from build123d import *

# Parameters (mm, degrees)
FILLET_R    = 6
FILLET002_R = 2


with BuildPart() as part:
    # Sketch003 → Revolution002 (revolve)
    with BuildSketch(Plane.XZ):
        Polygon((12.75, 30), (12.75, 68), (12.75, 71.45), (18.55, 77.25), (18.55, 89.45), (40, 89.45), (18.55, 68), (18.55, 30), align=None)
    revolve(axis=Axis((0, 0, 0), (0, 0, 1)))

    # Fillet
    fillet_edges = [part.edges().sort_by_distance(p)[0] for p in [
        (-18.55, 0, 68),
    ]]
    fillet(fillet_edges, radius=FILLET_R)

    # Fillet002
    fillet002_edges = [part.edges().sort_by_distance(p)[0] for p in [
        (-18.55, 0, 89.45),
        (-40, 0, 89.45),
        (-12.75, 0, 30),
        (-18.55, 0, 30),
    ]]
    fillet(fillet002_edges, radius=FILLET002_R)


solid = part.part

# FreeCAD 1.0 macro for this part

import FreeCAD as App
import Part
import Sketcher
Q = App.Units.Quantity


def edges_at(feature, points):
    """Names of the edges that pass closest to the given points."""
    edges = feature.Shape.Edges
    near = lambda p: min(range(len(edges)), key=lambda i: edges[i].distToShape(Part.Vertex(*p))[0])
    return sorted({f"Edge{near(p) + 1}" for p in points})

doc = App.newDocument("Part")
params = doc.addObject("Spreadsheet::Sheet", "Params")
for row, (alias, value) in enumerate([
    ("sketch1_height", "38 mm"),
    ("sketch1_width", "5.8 mm"),
    ("sketch1_height2", "12.2 mm"),
    ("sketch1_width2", "21.45 mm"),
    ("revolution_angle", "360 deg"),
    ("fillet_radius", "6 mm"),
    ("fillet2_radius", "2 mm"),
], start=1):
    params.set(f"A{row}", alias)
    params.set(f"B{row}", "=" + value)
    params.setAlias(f"B{row}", alias)

body = doc.addObject("PartDesign::Body", "Body")

# Sketch on XZ plane
sketch1 = doc.addObject("Sketcher::SketchObject", "Sketch")
body.addObject(sketch1)
sketch1.AttachmentSupport = (doc.XZ_Plane, [""])
sketch1.MapMode = "FlatFace"
sketch1.addGeometry([
    Part.LineSegment(App.Vector(12.75, 71.45, 0), App.Vector(12.75, 30, 0)),  # 0
    Part.LineSegment(App.Vector(12.75, 30, 0), App.Vector(18.55, 30, 0)),  # 1
    Part.LineSegment(App.Vector(18.55, 30, 0), App.Vector(18.55, 68, 0)),  # 2
    Part.LineSegment(App.Vector(18.55, 68, 0), App.Vector(40, 89.45, 0)),  # 3
    Part.LineSegment(App.Vector(40, 89.45, 0), App.Vector(18.55, 89.45, 0)),  # 4
    Part.LineSegment(App.Vector(18.55, 89.45, 0), App.Vector(18.55, 77.25, 0)),  # 5
    Part.LineSegment(App.Vector(18.55, 77.25, 0), App.Vector(12.75, 71.45, 0)),  # 6
], False)
sketch1.addConstraint([
    Sketcher.Constraint("Coincident", 0, 2, 1, 1),
    Sketcher.Constraint("Coincident", 1, 2, 2, 1),
    Sketcher.Constraint("Coincident", 2, 2, 3, 1),
    Sketcher.Constraint("Coincident", 3, 2, 4, 1),
    Sketcher.Constraint("Coincident", 4, 2, 5, 1),
    Sketcher.Constraint("Coincident", 5, 2, 6, 1),
    Sketcher.Constraint("Coincident", 6, 2, 0, 1),
    Sketcher.Constraint("Vertical", 0),
    Sketcher.Constraint("Horizontal", 1),
    Sketcher.Constraint("Vertical", 2),
    Sketcher.Constraint("Horizontal", 4),
    Sketcher.Constraint("Vertical", 5),
    Sketcher.Constraint("Parallel", 3, 6),
    Sketcher.Constraint("Vertical", 2, 2, 4, 2),
    Sketcher.Constraint("DistanceY", 2, 1, 2, 2, Q("38 mm")),
    Sketcher.Constraint("Angle", 3, Q("45 deg")),
    Sketcher.Constraint("DistanceX", 1, 1, 1, 2, Q("5.8 mm")),
    Sketcher.Constraint("DistanceY", 5, 2, 5, 1, Q("12.2 mm")),
    Sketcher.Constraint("DistanceY", -1, 1, 0, 2, Q("30 mm")),
    Sketcher.Constraint("DistanceX", -1, 1, 3, 2, Q("40 mm")),
    Sketcher.Constraint("DistanceX", 4, 2, 4, 1, Q("21.45 mm")),
])
sketch1.setExpression("Constraints[14]", "Params.sketch1_height")
sketch1.setExpression("Constraints[16]", "Params.sketch1_width")
sketch1.setExpression("Constraints[17]", "Params.sketch1_height2")
sketch1.setExpression("Constraints[20]", "Params.sketch1_width2")
revolution = doc.addObject("PartDesign::Revolution", "Revolution")
body.addObject(revolution)
revolution.Profile = sketch1
revolution.ReferenceAxis = (sketch1, ["V_Axis"])
revolution.setExpression("Angle", "Params.revolution_angle")
doc.recompute()

fillet = doc.addObject("PartDesign::Fillet", "Fillet")
body.addObject(fillet)
fillet.Base = (revolution, edges_at(revolution, [(-18.55, 0, 68)]))
fillet.setExpression("Radius", "Params.fillet_radius")
doc.recompute()

fillet2 = doc.addObject("PartDesign::Fillet", "Fillet001")
body.addObject(fillet2)
fillet2.Base = (fillet, edges_at(fillet, [
    (-18.55, 0, 89.45),
    (-40, 0, 89.45),
    (-12.75, 0, 30),
    (-18.55, 0, 30),
]))
fillet2.setExpression("Radius", "Params.fillet2_radius")

doc.recompute()
